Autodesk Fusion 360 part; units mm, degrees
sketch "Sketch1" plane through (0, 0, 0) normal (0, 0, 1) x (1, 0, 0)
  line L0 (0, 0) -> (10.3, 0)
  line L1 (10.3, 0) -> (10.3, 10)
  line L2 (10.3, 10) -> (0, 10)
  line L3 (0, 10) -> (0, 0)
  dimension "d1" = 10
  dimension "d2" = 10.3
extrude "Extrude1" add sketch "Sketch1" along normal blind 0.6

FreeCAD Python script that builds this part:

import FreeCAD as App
import Part
import Sketcher
from FreeCAD import Vector


def add_polygon(sketch, points):
    """Adds a closed chain of lines whose ends are joined by coincident constraints."""
    first, n = sketch.GeometryCount, len(points)
    for a, b in zip(points, points[1:] + points[:1]):
        sketch.addGeometry(Part.LineSegment(App.Vector(*a, 0), App.Vector(*b, 0)), False)
    for i in range(n):
        sketch.addConstraint(Sketcher.Constraint("Coincident", first + i, 2, first + (i + 1) % n, 1))

doc = App.newDocument("Part")
body = doc.addObject("PartDesign::Body", "Body")

# Sketch on XY plane
sketch1 = doc.addObject("Sketcher::SketchObject", "Sketch")
body.addObject(sketch1)
sketch1.AttachmentSupport = (doc.XY_Plane, [""])
sketch1.MapMode = "FlatFace"
add_polygon(sketch1, [(0, 10), (0, 0), (10, 0), (10, 10)])  # lines 0-3
sketch1.addConstraint([
    Sketcher.Constraint("Vertical", 0),
    Sketcher.Constraint("Horizontal", 1),
    Sketcher.Constraint("Vertical", 2),
    Sketcher.Constraint("Horizontal", 3),
    Sketcher.Constraint("Coincident", 0, 2, -1, 1),
    Sketcher.Constraint("DistanceY", 0, 2, 0, 1, 10.0),
    Sketcher.Constraint("DistanceX", 1, 1, 1, 2, 10.3),
])
pad1 = doc.addObject("PartDesign::Pad", "Pad")
body.addObject(pad1)
pad1.Profile = sketch1
pad1.Length = 0.6

doc.recompute()
